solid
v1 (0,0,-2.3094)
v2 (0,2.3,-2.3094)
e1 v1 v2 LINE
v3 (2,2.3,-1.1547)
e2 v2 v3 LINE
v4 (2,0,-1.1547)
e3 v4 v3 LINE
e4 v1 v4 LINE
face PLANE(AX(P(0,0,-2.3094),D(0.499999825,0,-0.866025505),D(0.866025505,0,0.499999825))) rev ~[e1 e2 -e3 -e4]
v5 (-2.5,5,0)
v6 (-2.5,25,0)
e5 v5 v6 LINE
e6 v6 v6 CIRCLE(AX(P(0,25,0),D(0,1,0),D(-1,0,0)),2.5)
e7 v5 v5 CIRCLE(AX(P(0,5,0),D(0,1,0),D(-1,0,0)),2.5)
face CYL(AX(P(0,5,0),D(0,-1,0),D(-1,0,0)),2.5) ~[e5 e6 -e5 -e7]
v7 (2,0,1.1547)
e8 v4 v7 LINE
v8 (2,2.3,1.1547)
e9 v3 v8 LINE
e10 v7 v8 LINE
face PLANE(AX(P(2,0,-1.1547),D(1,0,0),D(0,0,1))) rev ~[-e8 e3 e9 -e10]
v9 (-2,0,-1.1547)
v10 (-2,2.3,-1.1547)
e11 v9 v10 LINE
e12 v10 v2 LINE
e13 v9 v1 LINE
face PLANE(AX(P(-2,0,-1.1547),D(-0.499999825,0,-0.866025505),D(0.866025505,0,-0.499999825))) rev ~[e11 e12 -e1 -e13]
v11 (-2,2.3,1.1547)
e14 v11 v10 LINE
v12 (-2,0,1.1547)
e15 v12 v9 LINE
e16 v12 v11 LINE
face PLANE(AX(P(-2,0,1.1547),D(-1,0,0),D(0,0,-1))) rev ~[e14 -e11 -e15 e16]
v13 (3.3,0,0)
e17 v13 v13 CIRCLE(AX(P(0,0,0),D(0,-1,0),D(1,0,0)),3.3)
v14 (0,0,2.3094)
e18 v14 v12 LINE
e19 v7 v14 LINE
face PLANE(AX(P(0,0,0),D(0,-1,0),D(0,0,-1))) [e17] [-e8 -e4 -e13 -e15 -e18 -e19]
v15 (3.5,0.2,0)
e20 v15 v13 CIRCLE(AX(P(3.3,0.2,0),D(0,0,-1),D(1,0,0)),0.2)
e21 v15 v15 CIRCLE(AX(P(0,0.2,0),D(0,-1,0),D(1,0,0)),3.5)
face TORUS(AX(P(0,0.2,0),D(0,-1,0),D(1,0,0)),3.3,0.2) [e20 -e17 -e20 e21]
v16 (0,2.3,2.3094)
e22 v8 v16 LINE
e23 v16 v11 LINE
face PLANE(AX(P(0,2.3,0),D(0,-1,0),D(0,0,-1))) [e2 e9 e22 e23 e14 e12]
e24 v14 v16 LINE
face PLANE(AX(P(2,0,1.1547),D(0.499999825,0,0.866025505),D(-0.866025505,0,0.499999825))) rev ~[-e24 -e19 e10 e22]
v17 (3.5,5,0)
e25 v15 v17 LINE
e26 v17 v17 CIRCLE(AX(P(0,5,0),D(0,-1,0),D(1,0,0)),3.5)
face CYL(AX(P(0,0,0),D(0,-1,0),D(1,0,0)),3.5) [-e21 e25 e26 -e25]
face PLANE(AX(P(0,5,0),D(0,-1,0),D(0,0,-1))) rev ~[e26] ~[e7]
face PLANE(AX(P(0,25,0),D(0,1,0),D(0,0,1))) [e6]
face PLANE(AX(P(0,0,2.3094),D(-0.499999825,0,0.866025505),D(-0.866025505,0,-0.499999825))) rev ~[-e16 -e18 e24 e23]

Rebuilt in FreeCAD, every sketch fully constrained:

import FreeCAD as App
import Part
import Sketcher
Q = App.Units.Quantity


def edges_at(feature, points):
    """Names of the edges that pass closest to the given points."""
    edges = feature.Shape.Edges
    near = lambda p: min(range(len(edges)), key=lambda i: edges[i].distToShape(Part.Vertex(*p))[0])
    return sorted({f"Edge{near(p) + 1}" for p in points})


def add_polygon(sketch, points):
    """Adds a closed chain of lines whose ends are joined by coincident constraints."""
    first, n = sketch.GeometryCount, len(points)
    for a, b in zip(points, points[1:] + points[:1]):
        sketch.addGeometry(Part.LineSegment(App.Vector(*a, 0), App.Vector(*b, 0)), False)
    for i in range(n):
        sketch.addConstraint(Sketcher.Constraint("Coincident", first + i, 2, first + (i + 1) % n, 1))

doc = App.newDocument("Part")
params = doc.addObject("Spreadsheet::Sheet", "Params")
for row, (alias, value) in enumerate([
    ("sketch1_diameter", "7 mm"),
    ("pad1_length", "5 mm"),
    ("sketch2_diameter", "5 mm"),
    ("pad2_length", "20 mm"),
    ("fillet_radius", "0.2 mm"),
    ("pocket1_length", "2.3 mm"),
], start=1):
    params.set(f"A{row}", alias)
    params.set(f"B{row}", "=" + value)
    params.setAlias(f"B{row}", alias)

body = doc.addObject("PartDesign::Body", "Body")

# Sketch on XZ plane
sketch1 = body.newObject("Sketcher::SketchObject", "Sketch")
sketch1.AttachmentSupport = (doc.getObject("XZ_Plane"), [""])
sketch1.MapMode = "FlatFace"
sketch1.addGeometry(Part.Circle(App.Vector(0, 0, 0), App.Vector(0, 0, 1), 3.5), False)
sketch1.addConstraint([
    Sketcher.Constraint("Coincident", 0, 3, -1, 1),
    Sketcher.Constraint("Diameter", 0, 7.0),
])
sketch1.setExpression("Constraints[1]", "Params.sketch1_diameter")
pad1 = body.newObject("PartDesign::Pad", "Pad")
pad1.Profile = sketch1
pad1.setExpression("Length", "Params.pad1_length")
pad1.Reversed = True

# Sketch on XZ plane
sketch2 = body.newObject("Sketcher::SketchObject", "Sketch001")
sketch2.AttachmentSupport = (doc.getObject("XZ_Plane"), [""])
sketch2.MapMode = "FlatFace"
sketch2.AttachmentOffset = App.Placement(App.Vector(0, 0, -5), App.Rotation())
sketch2.addGeometry(Part.Circle(App.Vector(0, 0, 0), App.Vector(0, 0, 1), 2.5), False)
sketch2.addConstraint([
    Sketcher.Constraint("Coincident", 0, 3, -1, 1),
    Sketcher.Constraint("Diameter", 0, 5.0),
])
sketch2.setExpression("Constraints[1]", "Params.sketch2_diameter")
pad2 = body.newObject("PartDesign::Pad", "Pad001")
pad2.Profile = sketch2
pad2.setExpression("Length", "Params.pad2_length")
pad2.Reversed = True
doc.recompute()

fillet = body.newObject("PartDesign::Fillet", "Fillet")
fillet.Base = (pad2, edges_at(pad2, [(-3.5, 0, 0)]))
fillet.setExpression("Radius", "Params.fillet_radius")

# Sketch on XZ plane
sketch3 = body.newObject("Sketcher::SketchObject", "Sketch002")
sketch3.AttachmentSupport = (doc.getObject("XZ_Plane"), [""])
sketch3.MapMode = "FlatFace"
add_polygon(sketch3, [(2, 1.2), (0, 2.3), (-2, 1.2), (-2, -1.2), (0, -2.3), (2, -1.2)])  # lines 0-5
sketch3.addConstraint([
    Sketcher.Constraint("Vertical", 2),
    Sketcher.Constraint("Vertical", 5),
    Sketcher.Constraint("Symmetric", 0, 2, 3, 2, -1, 1),
    Sketcher.Constraint("Symmetric", 1, 2, 4, 2, -1, 1),
    Sketcher.Constraint("PointOnObject", 0, 2, -2),
    Sketcher.Constraint("Parallel", 0, 3),
    Sketcher.Constraint("Horizontal", 2, 2, 4, 2),
    Sketcher.Constraint("Angle", 0, Q("150 deg")),
    Sketcher.Constraint("DistanceX", 1, 2, -1, 1, 2.0),
    Sketcher.Constraint("DistanceY", 2, 2, 2, 1, 2.3094),
])
pocket1 = body.newObject("PartDesign::Pocket", "Pocket")
pocket1.Profile = sketch3
pocket1.setExpression("Length", "Params.pocket1_length")

doc.recompute()
